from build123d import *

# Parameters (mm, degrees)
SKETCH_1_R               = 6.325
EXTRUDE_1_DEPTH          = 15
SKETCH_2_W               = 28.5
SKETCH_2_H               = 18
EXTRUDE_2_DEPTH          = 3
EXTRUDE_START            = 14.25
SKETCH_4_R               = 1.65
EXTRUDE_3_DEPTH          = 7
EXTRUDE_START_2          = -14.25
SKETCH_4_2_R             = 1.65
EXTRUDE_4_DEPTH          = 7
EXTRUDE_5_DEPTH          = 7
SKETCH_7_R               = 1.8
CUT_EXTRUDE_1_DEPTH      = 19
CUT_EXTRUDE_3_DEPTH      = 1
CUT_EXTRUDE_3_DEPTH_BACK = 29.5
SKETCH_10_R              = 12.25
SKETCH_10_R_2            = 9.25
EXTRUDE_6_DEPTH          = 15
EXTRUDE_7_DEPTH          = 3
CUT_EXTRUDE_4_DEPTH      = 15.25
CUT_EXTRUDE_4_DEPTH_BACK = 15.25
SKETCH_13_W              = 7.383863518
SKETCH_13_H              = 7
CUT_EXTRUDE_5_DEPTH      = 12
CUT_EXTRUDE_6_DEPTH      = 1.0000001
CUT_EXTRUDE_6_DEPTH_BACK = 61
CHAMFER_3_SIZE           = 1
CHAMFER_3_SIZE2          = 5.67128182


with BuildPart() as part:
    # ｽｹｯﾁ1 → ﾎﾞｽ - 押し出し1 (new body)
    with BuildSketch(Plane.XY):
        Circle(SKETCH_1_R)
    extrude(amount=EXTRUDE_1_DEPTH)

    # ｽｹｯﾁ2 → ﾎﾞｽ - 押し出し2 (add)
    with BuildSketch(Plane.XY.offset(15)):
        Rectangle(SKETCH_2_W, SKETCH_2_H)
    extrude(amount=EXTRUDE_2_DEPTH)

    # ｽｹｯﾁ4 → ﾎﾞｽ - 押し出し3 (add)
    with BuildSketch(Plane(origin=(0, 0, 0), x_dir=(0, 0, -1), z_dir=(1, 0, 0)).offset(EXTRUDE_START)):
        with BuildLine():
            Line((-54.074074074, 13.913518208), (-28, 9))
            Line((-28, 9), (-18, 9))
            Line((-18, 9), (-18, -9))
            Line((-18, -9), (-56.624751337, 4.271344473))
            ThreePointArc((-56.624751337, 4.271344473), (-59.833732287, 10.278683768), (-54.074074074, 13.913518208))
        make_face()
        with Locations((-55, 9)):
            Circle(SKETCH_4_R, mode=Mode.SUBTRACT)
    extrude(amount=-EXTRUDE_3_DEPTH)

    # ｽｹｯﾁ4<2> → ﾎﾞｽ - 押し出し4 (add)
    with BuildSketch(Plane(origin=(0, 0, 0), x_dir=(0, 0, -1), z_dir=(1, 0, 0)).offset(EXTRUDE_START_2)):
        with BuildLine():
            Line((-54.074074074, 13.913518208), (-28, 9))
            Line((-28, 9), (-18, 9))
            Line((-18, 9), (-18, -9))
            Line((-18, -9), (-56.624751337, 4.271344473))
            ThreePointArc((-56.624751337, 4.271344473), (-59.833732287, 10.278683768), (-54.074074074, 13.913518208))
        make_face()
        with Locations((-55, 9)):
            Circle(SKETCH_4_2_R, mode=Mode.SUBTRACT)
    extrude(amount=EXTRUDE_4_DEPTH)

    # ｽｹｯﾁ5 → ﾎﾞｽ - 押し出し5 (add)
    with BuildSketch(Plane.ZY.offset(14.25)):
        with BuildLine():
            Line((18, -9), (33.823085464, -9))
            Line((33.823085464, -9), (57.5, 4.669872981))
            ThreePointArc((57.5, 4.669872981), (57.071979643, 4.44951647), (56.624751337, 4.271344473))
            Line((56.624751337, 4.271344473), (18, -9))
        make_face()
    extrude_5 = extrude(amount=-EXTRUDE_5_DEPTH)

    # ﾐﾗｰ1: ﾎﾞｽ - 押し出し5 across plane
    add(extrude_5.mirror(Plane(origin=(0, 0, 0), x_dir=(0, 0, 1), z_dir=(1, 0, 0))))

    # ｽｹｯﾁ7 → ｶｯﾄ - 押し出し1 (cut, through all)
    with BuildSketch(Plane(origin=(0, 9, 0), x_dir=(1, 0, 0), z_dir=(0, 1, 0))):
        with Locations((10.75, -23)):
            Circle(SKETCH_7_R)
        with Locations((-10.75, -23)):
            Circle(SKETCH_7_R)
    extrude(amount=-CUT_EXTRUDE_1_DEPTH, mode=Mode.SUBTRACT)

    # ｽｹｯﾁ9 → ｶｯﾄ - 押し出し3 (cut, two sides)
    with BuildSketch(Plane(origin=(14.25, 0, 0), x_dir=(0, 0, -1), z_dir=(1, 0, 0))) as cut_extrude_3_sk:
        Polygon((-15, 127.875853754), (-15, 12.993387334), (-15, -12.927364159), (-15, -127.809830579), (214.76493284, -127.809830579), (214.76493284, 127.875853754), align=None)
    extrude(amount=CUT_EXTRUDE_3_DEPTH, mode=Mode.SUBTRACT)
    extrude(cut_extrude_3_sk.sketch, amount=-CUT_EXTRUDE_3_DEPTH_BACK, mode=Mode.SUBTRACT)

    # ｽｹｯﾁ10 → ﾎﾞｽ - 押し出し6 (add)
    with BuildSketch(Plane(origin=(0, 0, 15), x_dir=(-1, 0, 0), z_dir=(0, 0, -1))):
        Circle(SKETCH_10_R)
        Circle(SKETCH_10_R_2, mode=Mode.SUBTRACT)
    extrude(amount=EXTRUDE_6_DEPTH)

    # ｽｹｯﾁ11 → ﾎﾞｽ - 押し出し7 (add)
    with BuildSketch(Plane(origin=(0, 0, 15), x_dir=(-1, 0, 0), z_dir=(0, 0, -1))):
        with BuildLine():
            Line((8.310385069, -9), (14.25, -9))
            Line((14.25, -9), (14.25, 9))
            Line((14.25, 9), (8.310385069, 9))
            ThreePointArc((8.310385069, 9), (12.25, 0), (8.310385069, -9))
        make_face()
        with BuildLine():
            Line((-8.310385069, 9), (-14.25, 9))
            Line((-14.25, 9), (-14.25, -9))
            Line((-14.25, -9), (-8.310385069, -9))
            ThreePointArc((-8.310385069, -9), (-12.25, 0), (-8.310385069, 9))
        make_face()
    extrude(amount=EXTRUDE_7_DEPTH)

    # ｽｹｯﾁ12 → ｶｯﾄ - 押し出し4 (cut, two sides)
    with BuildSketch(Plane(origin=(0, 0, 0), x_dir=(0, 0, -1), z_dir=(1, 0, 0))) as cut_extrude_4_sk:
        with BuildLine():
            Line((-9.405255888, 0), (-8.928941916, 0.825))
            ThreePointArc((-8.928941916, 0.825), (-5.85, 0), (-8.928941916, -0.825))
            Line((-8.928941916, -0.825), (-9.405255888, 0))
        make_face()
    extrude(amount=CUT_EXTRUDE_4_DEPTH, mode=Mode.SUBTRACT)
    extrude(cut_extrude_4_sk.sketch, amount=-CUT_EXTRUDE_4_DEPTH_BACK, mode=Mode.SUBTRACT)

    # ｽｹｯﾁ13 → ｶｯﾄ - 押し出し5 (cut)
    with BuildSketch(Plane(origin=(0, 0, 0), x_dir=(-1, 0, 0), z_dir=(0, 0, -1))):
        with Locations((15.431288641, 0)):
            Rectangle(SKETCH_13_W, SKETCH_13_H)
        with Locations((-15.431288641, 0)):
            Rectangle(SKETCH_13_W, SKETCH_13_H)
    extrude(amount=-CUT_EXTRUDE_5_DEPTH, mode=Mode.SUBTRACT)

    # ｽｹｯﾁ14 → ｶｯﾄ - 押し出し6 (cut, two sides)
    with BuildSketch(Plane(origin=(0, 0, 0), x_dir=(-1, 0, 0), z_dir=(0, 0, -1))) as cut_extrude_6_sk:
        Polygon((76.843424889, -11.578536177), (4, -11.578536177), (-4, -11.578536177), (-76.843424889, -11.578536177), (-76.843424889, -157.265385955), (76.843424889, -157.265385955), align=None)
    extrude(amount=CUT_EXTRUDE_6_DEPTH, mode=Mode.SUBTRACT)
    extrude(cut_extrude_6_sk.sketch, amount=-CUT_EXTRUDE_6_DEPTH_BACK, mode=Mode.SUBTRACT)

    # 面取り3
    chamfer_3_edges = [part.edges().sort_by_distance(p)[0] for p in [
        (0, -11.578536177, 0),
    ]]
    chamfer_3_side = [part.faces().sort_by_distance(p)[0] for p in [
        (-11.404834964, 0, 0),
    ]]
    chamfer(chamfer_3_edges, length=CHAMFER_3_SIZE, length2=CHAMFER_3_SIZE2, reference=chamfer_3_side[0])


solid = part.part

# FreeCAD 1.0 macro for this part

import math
import FreeCAD as App
import Part
import Sketcher
from FreeCAD import Vector
Q = App.Units.Quantity


def edges_at(feature, points):
    """Names of the edges that pass closest to the given points."""
    edges = feature.Shape.Edges
    near = lambda p: min(range(len(edges)), key=lambda i: edges[i].distToShape(Part.Vertex(*p))[0])
    return sorted({f"Edge{near(p) + 1}" for p in points})


def add_polygon(sketch, points):
    """Adds a closed chain of lines whose ends are joined by coincident constraints."""
    first, n = sketch.GeometryCount, len(points)
    for a, b in zip(points, points[1:] + points[:1]):
        sketch.addGeometry(Part.LineSegment(App.Vector(*a, 0), App.Vector(*b, 0)), False)
    for i in range(n):
        sketch.addConstraint(Sketcher.Constraint("Coincident", first + i, 2, first + (i + 1) % n, 1))

doc = App.newDocument("Part")
params = doc.addObject("Spreadsheet::Sheet", "Params")
for row, (alias, value) in enumerate([
    ("sketch1_diameter", "12.65 mm"),
    ("pad1_length", "15 mm"),
    ("sketch2_height", "18 mm"),
    ("sketch2_width", "28.5 mm"),
    ("pad2_length", "3 mm"),
    ("sketch3_radius", "5 mm"),
    ("sketch3_diameter", "3.3 mm"),
    ("sketch3_width", "18 mm"),
    ("sketch3_height", "10 mm"),
    ("pad3_length", "7 mm"),
    ("sketch4_radius", "5 mm"),
    ("sketch4_diameter", "3.3 mm"),
    ("sketch4_width", "18 mm"),
    ("sketch4_height", "10 mm"),
    ("pad4_length", "7 mm"),
    ("sketch5_radius", "5 mm"),
    ("pad5_length", "7 mm"),
    ("sketch6_diameter", "3.6 mm"),
    ("sketch8_diameter", "24.5 mm"),
    ("sketch8_diameter2", "18.5 mm"),
    ("pad6_length", "15 mm"),
    ("sketch9_height", "18 mm"),
    ("sketch9_radius", "12.25 mm"),
    ("pad7_length", "3 mm"),
    ("sketch10_radius", "1.65 mm"),
    ("sketch11_height", "7 mm"),
    ("pocket4_length", "12 mm"),
    ("chamfer_size", "1 mm"),
    ("chamfer_size2", "5.671282 mm"),
], start=1):
    params.set(f"A{row}", alias)
    params.set(f"B{row}", "=" + value)
    params.setAlias(f"B{row}", alias)

body = doc.addObject("PartDesign::Body", "Body")

# Sketch on XY plane
sketch1 = body.newObject("Sketcher::SketchObject", "Sketch")
sketch1.AttachmentSupport = (doc.getObject("XY_Plane"), [""])
sketch1.MapMode = "FlatFace"
sketch1.addGeometry(Part.Circle(Vector(0, 0, 0), Vector(0, 0, 1), 6), False)
sketch1.addConstraint([
    Sketcher.Constraint("Coincident", 0, 3, -1, 1),
    Sketcher.Constraint("Diameter", 0, 12.65),
])
sketch1.setExpression("Constraints[1]", "Params.sketch1_diameter")
pad1 = body.newObject("PartDesign::Pad", "Pad")
pad1.Profile = sketch1
pad1.setExpression("Length", "Params.pad1_length")

# Sketch on XY plane
sketch2 = body.newObject("Sketcher::SketchObject", "Sketch001")
sketch2.AttachmentSupport = (doc.getObject("XY_Plane"), [""])
sketch2.MapMode = "FlatFace"
sketch2.AttachmentOffset = App.Placement(Vector(0, 0, 15), App.Rotation())
add_polygon(sketch2, [(-14, 9), (-14, -9), (14, -9), (14, 9)])  # lines 0-3
sketch2.addConstraint([
    Sketcher.Constraint("Vertical", 0),
    Sketcher.Constraint("Horizontal", 1),
    Sketcher.Constraint("Vertical", 2),
    Sketcher.Constraint("Horizontal", 3),
    Sketcher.Constraint("Symmetric", 0, 2, 2, 2, -1, 1),
    Sketcher.Constraint("DistanceY", 0, 2, 0, 1, 18.0),
    Sketcher.Constraint("DistanceX", 1, 1, 1, 2, 28.5),
])
sketch2.setExpression("Constraints[9]", "Params.sketch2_height")
sketch2.setExpression("Constraints[10]", "Params.sketch2_width")
pad2 = body.newObject("PartDesign::Pad", "Pad001")
pad2.Profile = sketch2
pad2.setExpression("Length", "Params.pad2_length")

# Sketch on YZ plane
sketch3 = body.newObject("Sketcher::SketchObject", "Sketch002")
sketch3.AttachmentSupport = (doc.getObject("YZ_Plane"), [""])
sketch3.MapMode = "FlatFace"
sketch3.AttachmentOffset = App.Placement(Vector(0, 0, 14.25), App.Rotation())
sketch3.addGeometry([
    Part.LineSegment(Vector(9, 28, 0), Vector(13.9, 54.1, 0)),  # 0
    Part.ArcOfCircle(Part.Circle(Vector(9, 55, 0), Vector(0, 0, 1), 5), math.radians(-11), math.radians(161)),  # 1
    Part.LineSegment(Vector(4.3, 56.6, 0), Vector(-9, 18, 0)),  # 2
    Part.LineSegment(Vector(-9, 18, 0), Vector(9, 18, 0)),  # 3
    Part.LineSegment(Vector(9, 18, 0), Vector(9, 28, 0)),  # 4
    Part.Circle(Vector(9, 55, 0), Vector(0, 0, 1), 1.6),  # 5
], False)
sketch3.addConstraint([
    Sketcher.Constraint("Tangent", 0, 2, 1, 1),
    Sketcher.Constraint("Tangent", 1, 2, 2, 1),
    Sketcher.Constraint("Coincident", 2, 2, 3, 1),
    Sketcher.Constraint("Coincident", 3, 2, 4, 1),
    Sketcher.Constraint("Coincident", 4, 2, 0, 1),
    Sketcher.Constraint("Horizontal", 3),
    Sketcher.Constraint("Vertical", 4),
    Sketcher.Constraint("Coincident", 5, 3, 1, 3),
    Sketcher.Constraint("Vertical", 5, 3, 3, 2),
    Sketcher.Constraint("Radius", 1, 5.0),
    Sketcher.Constraint("Diameter", 5, 3.3),
    Sketcher.Constraint("DistanceX", 3, 1, 3, 2, 18.0),
    Sketcher.Constraint("DistanceY", 4, 1, 4, 2, 10.0),
    Sketcher.Constraint("DistanceX", -1, 1, 1, 3, 9.0),
    Sketcher.Constraint("DistanceY", -1, 1, 1, 3, 55.0),
    Sketcher.Constraint("DistanceY", -1, 1, 2, 2, 18.0),
])
sketch3.setExpression("Constraints[9]", "Params.sketch3_radius")
sketch3.setExpression("Constraints[10]", "Params.sketch3_diameter")
sketch3.setExpression("Constraints[11]", "Params.sketch3_width")
sketch3.setExpression("Constraints[12]", "Params.sketch3_height")
pad3 = body.newObject("PartDesign::Pad", "Pad002")
pad3.Profile = sketch3
pad3.setExpression("Length", "Params.pad3_length")
pad3.Reversed = True

# Sketch on YZ plane
sketch4 = body.newObject("Sketcher::SketchObject", "Sketch003")
sketch4.AttachmentSupport = (doc.getObject("YZ_Plane"), [""])
sketch4.MapMode = "FlatFace"
sketch4.AttachmentOffset = App.Placement(Vector(0, 0, -14.25), App.Rotation())
sketch4.addGeometry([
    Part.LineSegment(Vector(9, 28, 0), Vector(13.9, 54.1, 0)),  # 0
    Part.ArcOfCircle(Part.Circle(Vector(9, 55, 0), Vector(0, 0, 1), 5), math.radians(-11), math.radians(161)),  # 1
    Part.LineSegment(Vector(4.3, 56.6, 0), Vector(-9, 18, 0)),  # 2
    Part.LineSegment(Vector(-9, 18, 0), Vector(9, 18, 0)),  # 3
    Part.LineSegment(Vector(9, 18, 0), Vector(9, 28, 0)),  # 4
    Part.Circle(Vector(9, 55, 0), Vector(0, 0, 1), 1.6),  # 5
], False)
sketch4.addConstraint([
    Sketcher.Constraint("Tangent", 0, 2, 1, 1),
    Sketcher.Constraint("Tangent", 1, 2, 2, 1),
    Sketcher.Constraint("Coincident", 2, 2, 3, 1),
    Sketcher.Constraint("Coincident", 3, 2, 4, 1),
    Sketcher.Constraint("Coincident", 4, 2, 0, 1),
    Sketcher.Constraint("Horizontal", 3),
    Sketcher.Constraint("Vertical", 4),
    Sketcher.Constraint("Coincident", 5, 3, 1, 3),
    Sketcher.Constraint("Vertical", 5, 3, 3, 2),
    Sketcher.Constraint("Radius", 1, 5.0),
    Sketcher.Constraint("Diameter", 5, 3.3),
    Sketcher.Constraint("DistanceX", 3, 1, 3, 2, 18.0),
    Sketcher.Constraint("DistanceY", 4, 1, 4, 2, 10.0),
    Sketcher.Constraint("DistanceX", -1, 1, 1, 3, 9.0),
    Sketcher.Constraint("DistanceY", -1, 1, 1, 3, 55.0),
    Sketcher.Constraint("DistanceY", -1, 1, 2, 2, 18.0),
])
sketch4.setExpression("Constraints[9]", "Params.sketch4_radius")
sketch4.setExpression("Constraints[10]", "Params.sketch4_diameter")
sketch4.setExpression("Constraints[11]", "Params.sketch4_width")
sketch4.setExpression("Constraints[12]", "Params.sketch4_height")
pad4 = body.newObject("PartDesign::Pad", "Pad003")
pad4.Profile = sketch4
pad4.setExpression("Length", "Params.pad4_length")

# Sketch on YZ plane
sketch5 = body.newObject("Sketcher::SketchObject", "Sketch004")
sketch5.AttachmentSupport = (doc.getObject("YZ_Plane"), [""])
sketch5.MapMode = "FlatFace"
sketch5.AttachmentOffset = App.Placement(Vector(0, 0, -14.25), App.Rotation())
sketch5.addGeometry([
    Part.LineSegment(Vector(-9, 18, 0), Vector(-9, 33.8, 0)),
    Part.LineSegment(Vector(-9, 33.8, 0), Vector(4.7, 57.5, 0)),
    Part.ArcOfCircle(Part.Circle(Vector(9, 55, 0), Vector(0, 0, 1), 5), math.radians(150), math.radians(161.04)),
    Part.LineSegment(Vector(4.3, 56.6, 0), Vector(-9, 18, 0)),
], False)
sketch5.addConstraint([
    Sketcher.Constraint("Coincident", 0, 2, 1, 1),
    Sketcher.Constraint("Tangent", 1, 2, 2, 1),
    Sketcher.Constraint("Tangent", 2, 2, 3, 1),
    Sketcher.Constraint("Coincident", 3, 2, 0, 1),
    Sketcher.Constraint("Vertical", 0),
    Sketcher.Constraint("Radius", 2, 5.0),
    Sketcher.Constraint("Angle", 1, Q("60 deg")),
    Sketcher.Constraint("DistanceX", -1, 1, 2, 3, 9.0),
    Sketcher.Constraint("DistanceY", -1, 1, 2, 3, 55.0),
    Sketcher.Constraint("DistanceX", 0, 2, -1, 1, 9.0),
    Sketcher.Constraint("DistanceY", -1, 1, 3, 2, 18.0),
])
sketch5.setExpression("Constraints[5]", "Params.sketch5_radius")
pad5 = body.newObject("PartDesign::Pad", "Pad004")
pad5.Profile = sketch5
pad5.setExpression("Length", "Params.pad5_length")
doc.recompute()

mirrored = body.newObject("PartDesign::Mirrored", "Mirrored")
mirrored.Originals = [pad5]
mirrored.MirrorPlane = (doc.getObject("YZ_Plane"), [""])
body.Tip = mirrored

# Sketch on XZ plane
sketch6 = body.newObject("Sketcher::SketchObject", "Sketch005")
sketch6.AttachmentSupport = (doc.getObject("XZ_Plane"), [""])
sketch6.MapMode = "FlatFace"
sketch6.AttachmentOffset = App.Placement(Vector(0, 0, -9), App.Rotation())
sketch6.addGeometry([
    Part.Circle(Vector(10.8, 23, 0), Vector(0, 0, 1), 1.8),
    Part.Circle(Vector(-10.8, 23, 0), Vector(0, 0, 1), 1.8),
], False)
sketch6.addConstraint([
    Sketcher.Constraint("Equal", 0, 1),
    Sketcher.Constraint("Symmetric", 0, 3, 1, 3, -2),
    Sketcher.Constraint("Diameter", 0, 3.6),
    Sketcher.Constraint("DistanceY", -1, 1, 0, 3, 23.0),
    Sketcher.Constraint("DistanceX", 1, 3, 0, 3, 21.5),
])
sketch6.setExpression("Constraints[2]", "Params.sketch6_diameter")
pocket1 = body.newObject("PartDesign::Pocket", "Pocket")
pocket1.Profile = sketch6
pocket1.Type = "ThroughAll"
pocket1.Reversed = True

# Sketch on YZ plane
sketch7 = body.newObject("Sketcher::SketchObject", "Sketch006")
sketch7.AttachmentSupport = (doc.getObject("YZ_Plane"), [""])
sketch7.MapMode = "FlatFace"
sketch7.AttachmentOffset = App.Placement(Vector(0, 0, 14.25), App.Rotation())
add_polygon(sketch7, [(128, 15), (-128, 15), (-128, -215), (128, -215)])  # lines 0-3
sketch7.addConstraint([
    Sketcher.Constraint("Horizontal", 0),
    Sketcher.Constraint("Vertical", 1),
    Sketcher.Constraint("Horizontal", 2),
    Sketcher.Constraint("Vertical", 3),
    Sketcher.Constraint("DistanceY", -1, 1, 0, 2, 15.0),
    Sketcher.Constraint("DistanceX", 0, 2, 0, 1, 255.685684),
    Sketcher.Constraint("DistanceY", 1, 2, 1, 1, 229.764933),
    Sketcher.Constraint("DistanceX", 0, 2, -1, 1, 127.809831),
])
pocket2 = body.newObject("PartDesign::Pocket", "Pocket001")
pocket2.Profile = sketch7
pocket2.Type = "ThroughAll"
pocket2.Midplane = True

# Sketch on XY plane
sketch8 = body.newObject("Sketcher::SketchObject", "Sketch007")
sketch8.AttachmentSupport = (doc.getObject("XY_Plane"), [""])
sketch8.MapMode = "FlatFace"
sketch8.AttachmentOffset = App.Placement(Vector(0, 0, 15), App.Rotation())
sketch8.addGeometry([
    Part.Circle(Vector(0, 0, 0), Vector(0, 0, 1), 12),
    Part.Circle(Vector(0, 0, 0), Vector(0, 0, 1), 9),
], False)
sketch8.addConstraint([
    Sketcher.Constraint("Coincident", 0, 3, -1, 1),
    Sketcher.Constraint("Coincident", 1, 3, -1, 1),
    Sketcher.Constraint("Diameter", 0, 24.5),
    Sketcher.Constraint("Diameter", 1, 18.5),
])
sketch8.setExpression("Constraints[2]", "Params.sketch8_diameter")
sketch8.setExpression("Constraints[3]", "Params.sketch8_diameter2")
pad6 = body.newObject("PartDesign::Pad", "Pad005")
pad6.Profile = sketch8
pad6.setExpression("Length", "Params.pad6_length")
pad6.Reversed = True

# Sketch on XY plane
sketch9 = body.newObject("Sketcher::SketchObject", "Sketch008")
sketch9.AttachmentSupport = (doc.getObject("XY_Plane"), [""])
sketch9.MapMode = "FlatFace"
sketch9.AttachmentOffset = App.Placement(Vector(0, 0, 15), App.Rotation())
sketch9.addGeometry([
    Part.LineSegment(Vector(-8, -9, 0), Vector(-14, -9, 0)),  # 0
    Part.LineSegment(Vector(-14, -9, 0), Vector(-14, 9, 0)),  # 1
    Part.LineSegment(Vector(-14, 9, 0), Vector(-8, 9, 0)),  # 2
    Part.ArcOfCircle(Part.Circle(Vector(0, 0, 0), Vector(0, 0, 1), 12), math.radians(133), math.radians(227)),  # 3
    Part.LineSegment(Vector(8, 9, 0), Vector(14, 9, 0)),  # 4
    Part.LineSegment(Vector(14, 9, 0), Vector(14, -9, 0)),  # 5
    Part.LineSegment(Vector(14, -9, 0), Vector(8, -9, 0)),  # 6
    Part.ArcOfCircle(Part.Circle(Vector(0, 0, 0), Vector(0, 0, 1), 12), math.radians(-47), math.radians(47)),  # 7
], False)
sketch9.addConstraint([
    Sketcher.Constraint("Coincident", 0, 2, 1, 1),
    Sketcher.Constraint("Coincident", 1, 2, 2, 1),
    Sketcher.Constraint("Coincident", 2, 2, 3, 1),
    Sketcher.Constraint("Coincident", 3, 2, 0, 1),
    Sketcher.Constraint("Coincident", 4, 2, 5, 1),
    Sketcher.Constraint("Coincident", 5, 2, 6, 1),
    Sketcher.Constraint("Coincident", 6, 2, 7, 1),
    Sketcher.Constraint("Coincident", 7, 2, 4, 1),
    Sketcher.Constraint("Horizontal", 0),
    Sketcher.Constraint("Vertical", 1),
    Sketcher.Constraint("Horizontal", 2),
    Sketcher.Constraint("Horizontal", 4),
    Sketcher.Constraint("Vertical", 5),
    Sketcher.Constraint("Horizontal", 6),
    Sketcher.Constraint("Coincident", 3, 3, -1, 1),
    Sketcher.Constraint("Coincident", 7, 3, -1, 1),
    Sketcher.Constraint("Equal", 3, 7),
    Sketcher.Constraint("Symmetric", 0, 2, 4, 2, -1, 1),
    Sketcher.Constraint("Horizontal", 2, 2, 4, 2),
    Sketcher.Constraint("Horizontal", 3, 2, 5, 2),
    Sketcher.Constraint("DistanceY", 1, 1, 1, 2, 18.0),
    Sketcher.Constraint("Radius", 3, 12.25),
    Sketcher.Constraint("DistanceX", 1, 2, 4, 2, 28.5),
])
sketch9.setExpression("Constraints[20]", "Params.sketch9_height")
sketch9.setExpression("Constraints[21]", "Params.sketch9_radius")
pad7 = body.newObject("PartDesign::Pad", "Pad006")
pad7.Profile = sketch9
pad7.setExpression("Length", "Params.pad7_length")
pad7.Reversed = True

# Sketch on YZ plane
sketch10 = body.newObject("Sketcher::SketchObject", "Sketch009")
sketch10.AttachmentSupport = (doc.getObject("YZ_Plane"), [""])
sketch10.MapMode = "FlatFace"
sketch10.addGeometry([
    Part.LineSegment(Vector(0.8, 8.9, 0), Vector(0, 9.4, 0)),
    Part.LineSegment(Vector(0, 9.4, 0), Vector(-0.8, 8.9, 0)),
    Part.ArcOfCircle(Part.Circle(Vector(0, 7.5, 0), Vector(0, 0, 1), 1.6), math.radians(120), math.radians(420)),
], False)
sketch10.addConstraint([
    Sketcher.Constraint("Coincident", 0, 2, 1, 1),
    Sketcher.Constraint("Tangent", 1, 2, 2, 1),
    Sketcher.Constraint("Tangent", 2, 2, 0, 1),
    Sketcher.Constraint("Symmetric", 1, 2, 2, 2, -2),
    Sketcher.Constraint("Angle", 0, Q("150 deg")),
    Sketcher.Constraint("Radius", 2, 1.65),
    Sketcher.Constraint("DistanceY", -1, 1, 2, 3, 7.5),
])
sketch10.setExpression("Constraints[5]", "Params.sketch10_radius")
pocket3 = body.newObject("PartDesign::Pocket", "Pocket002")
pocket3.Profile = sketch10
pocket3.Type = "ThroughAll"
pocket3.Midplane = True

# Sketch on XY plane
sketch11 = body.newObject("Sketcher::SketchObject", "Sketch010")
sketch11.AttachmentSupport = (doc.getObject("XY_Plane"), [""])
sketch11.MapMode = "FlatFace"
add_polygon(sketch11, [(-12, 4), (-12, -4), (-19, -4), (-19, 4)])  # lines 0-3
add_polygon(sketch11, [(19, 4), (19, -4), (12, -4), (12, 4)])  # lines 4-7
sketch11.addConstraint([
    Sketcher.Constraint("Vertical", 0),
    Sketcher.Constraint("Horizontal", 1),
    Sketcher.Constraint("Vertical", 2),
    Sketcher.Constraint("Horizontal", 3),
    Sketcher.Constraint("Vertical", 4),
    Sketcher.Constraint("Horizontal", 5),
    Sketcher.Constraint("Vertical", 6),
    Sketcher.Constraint("Horizontal", 7),
    Sketcher.Constraint("Symmetric", 2, 2, 4, 2, -1, 1),
    Sketcher.Constraint("Symmetric", 0, 2, 6, 2, -1, 1),
    Sketcher.Constraint("Horizontal", 1, 2, 4, 2),
    Sketcher.Constraint("DistanceY", 0, 2, 0, 1, 7.0),
    Sketcher.Constraint("DistanceX", 1, 2, 1, 1, 7.383864),
    Sketcher.Constraint("DistanceX", 1, 2, -1, 1, 19.12322),
])
sketch11.setExpression("Constraints[19]", "Params.sketch11_height")
pocket4 = body.newObject("PartDesign::Pocket", "Pocket003")
pocket4.Profile = sketch11
pocket4.setExpression("Length", "Params.pocket4_length")
pocket4.Reversed = True

# Sketch on XY plane
sketch12 = body.newObject("Sketcher::SketchObject", "Sketch011")
sketch12.AttachmentSupport = (doc.getObject("XY_Plane"), [""])
sketch12.MapMode = "FlatFace"
add_polygon(sketch12, [(-77, -12), (77, -12), (77, -157), (-77, -157)])  # lines 0-3
sketch12.addConstraint([
    Sketcher.Constraint("Horizontal", 0),
    Sketcher.Constraint("Vertical", 1),
    Sketcher.Constraint("Horizontal", 2),
    Sketcher.Constraint("Vertical", 3),
    Sketcher.Constraint("DistanceX", 0, 1, 0, 2, 153.68685),
    Sketcher.Constraint("DistanceY", 1, 2, 1, 1, 145.68685),
    Sketcher.Constraint("DistanceX", -1, 1, 0, 2, 76.843425),
    Sketcher.Constraint("DistanceY", 0, 2, -1, 1, 11.578536),
])
pocket5 = body.newObject("PartDesign::Pocket", "Pocket004")
pocket5.Profile = sketch12
pocket5.Type = "ThroughAll"
pocket5.Midplane = True
doc.recompute()

chamfer = body.newObject("PartDesign::Chamfer", "Chamfer")
chamfer.Base = (pocket5, edges_at(pocket5, [(0, -11.579, 0)]))
chamfer.ChamferType = "Two distances"
chamfer.setExpression("Size", "Params.chamfer_size")
chamfer.setExpression("Size2", "Params.chamfer_size2")

doc.recompute()
